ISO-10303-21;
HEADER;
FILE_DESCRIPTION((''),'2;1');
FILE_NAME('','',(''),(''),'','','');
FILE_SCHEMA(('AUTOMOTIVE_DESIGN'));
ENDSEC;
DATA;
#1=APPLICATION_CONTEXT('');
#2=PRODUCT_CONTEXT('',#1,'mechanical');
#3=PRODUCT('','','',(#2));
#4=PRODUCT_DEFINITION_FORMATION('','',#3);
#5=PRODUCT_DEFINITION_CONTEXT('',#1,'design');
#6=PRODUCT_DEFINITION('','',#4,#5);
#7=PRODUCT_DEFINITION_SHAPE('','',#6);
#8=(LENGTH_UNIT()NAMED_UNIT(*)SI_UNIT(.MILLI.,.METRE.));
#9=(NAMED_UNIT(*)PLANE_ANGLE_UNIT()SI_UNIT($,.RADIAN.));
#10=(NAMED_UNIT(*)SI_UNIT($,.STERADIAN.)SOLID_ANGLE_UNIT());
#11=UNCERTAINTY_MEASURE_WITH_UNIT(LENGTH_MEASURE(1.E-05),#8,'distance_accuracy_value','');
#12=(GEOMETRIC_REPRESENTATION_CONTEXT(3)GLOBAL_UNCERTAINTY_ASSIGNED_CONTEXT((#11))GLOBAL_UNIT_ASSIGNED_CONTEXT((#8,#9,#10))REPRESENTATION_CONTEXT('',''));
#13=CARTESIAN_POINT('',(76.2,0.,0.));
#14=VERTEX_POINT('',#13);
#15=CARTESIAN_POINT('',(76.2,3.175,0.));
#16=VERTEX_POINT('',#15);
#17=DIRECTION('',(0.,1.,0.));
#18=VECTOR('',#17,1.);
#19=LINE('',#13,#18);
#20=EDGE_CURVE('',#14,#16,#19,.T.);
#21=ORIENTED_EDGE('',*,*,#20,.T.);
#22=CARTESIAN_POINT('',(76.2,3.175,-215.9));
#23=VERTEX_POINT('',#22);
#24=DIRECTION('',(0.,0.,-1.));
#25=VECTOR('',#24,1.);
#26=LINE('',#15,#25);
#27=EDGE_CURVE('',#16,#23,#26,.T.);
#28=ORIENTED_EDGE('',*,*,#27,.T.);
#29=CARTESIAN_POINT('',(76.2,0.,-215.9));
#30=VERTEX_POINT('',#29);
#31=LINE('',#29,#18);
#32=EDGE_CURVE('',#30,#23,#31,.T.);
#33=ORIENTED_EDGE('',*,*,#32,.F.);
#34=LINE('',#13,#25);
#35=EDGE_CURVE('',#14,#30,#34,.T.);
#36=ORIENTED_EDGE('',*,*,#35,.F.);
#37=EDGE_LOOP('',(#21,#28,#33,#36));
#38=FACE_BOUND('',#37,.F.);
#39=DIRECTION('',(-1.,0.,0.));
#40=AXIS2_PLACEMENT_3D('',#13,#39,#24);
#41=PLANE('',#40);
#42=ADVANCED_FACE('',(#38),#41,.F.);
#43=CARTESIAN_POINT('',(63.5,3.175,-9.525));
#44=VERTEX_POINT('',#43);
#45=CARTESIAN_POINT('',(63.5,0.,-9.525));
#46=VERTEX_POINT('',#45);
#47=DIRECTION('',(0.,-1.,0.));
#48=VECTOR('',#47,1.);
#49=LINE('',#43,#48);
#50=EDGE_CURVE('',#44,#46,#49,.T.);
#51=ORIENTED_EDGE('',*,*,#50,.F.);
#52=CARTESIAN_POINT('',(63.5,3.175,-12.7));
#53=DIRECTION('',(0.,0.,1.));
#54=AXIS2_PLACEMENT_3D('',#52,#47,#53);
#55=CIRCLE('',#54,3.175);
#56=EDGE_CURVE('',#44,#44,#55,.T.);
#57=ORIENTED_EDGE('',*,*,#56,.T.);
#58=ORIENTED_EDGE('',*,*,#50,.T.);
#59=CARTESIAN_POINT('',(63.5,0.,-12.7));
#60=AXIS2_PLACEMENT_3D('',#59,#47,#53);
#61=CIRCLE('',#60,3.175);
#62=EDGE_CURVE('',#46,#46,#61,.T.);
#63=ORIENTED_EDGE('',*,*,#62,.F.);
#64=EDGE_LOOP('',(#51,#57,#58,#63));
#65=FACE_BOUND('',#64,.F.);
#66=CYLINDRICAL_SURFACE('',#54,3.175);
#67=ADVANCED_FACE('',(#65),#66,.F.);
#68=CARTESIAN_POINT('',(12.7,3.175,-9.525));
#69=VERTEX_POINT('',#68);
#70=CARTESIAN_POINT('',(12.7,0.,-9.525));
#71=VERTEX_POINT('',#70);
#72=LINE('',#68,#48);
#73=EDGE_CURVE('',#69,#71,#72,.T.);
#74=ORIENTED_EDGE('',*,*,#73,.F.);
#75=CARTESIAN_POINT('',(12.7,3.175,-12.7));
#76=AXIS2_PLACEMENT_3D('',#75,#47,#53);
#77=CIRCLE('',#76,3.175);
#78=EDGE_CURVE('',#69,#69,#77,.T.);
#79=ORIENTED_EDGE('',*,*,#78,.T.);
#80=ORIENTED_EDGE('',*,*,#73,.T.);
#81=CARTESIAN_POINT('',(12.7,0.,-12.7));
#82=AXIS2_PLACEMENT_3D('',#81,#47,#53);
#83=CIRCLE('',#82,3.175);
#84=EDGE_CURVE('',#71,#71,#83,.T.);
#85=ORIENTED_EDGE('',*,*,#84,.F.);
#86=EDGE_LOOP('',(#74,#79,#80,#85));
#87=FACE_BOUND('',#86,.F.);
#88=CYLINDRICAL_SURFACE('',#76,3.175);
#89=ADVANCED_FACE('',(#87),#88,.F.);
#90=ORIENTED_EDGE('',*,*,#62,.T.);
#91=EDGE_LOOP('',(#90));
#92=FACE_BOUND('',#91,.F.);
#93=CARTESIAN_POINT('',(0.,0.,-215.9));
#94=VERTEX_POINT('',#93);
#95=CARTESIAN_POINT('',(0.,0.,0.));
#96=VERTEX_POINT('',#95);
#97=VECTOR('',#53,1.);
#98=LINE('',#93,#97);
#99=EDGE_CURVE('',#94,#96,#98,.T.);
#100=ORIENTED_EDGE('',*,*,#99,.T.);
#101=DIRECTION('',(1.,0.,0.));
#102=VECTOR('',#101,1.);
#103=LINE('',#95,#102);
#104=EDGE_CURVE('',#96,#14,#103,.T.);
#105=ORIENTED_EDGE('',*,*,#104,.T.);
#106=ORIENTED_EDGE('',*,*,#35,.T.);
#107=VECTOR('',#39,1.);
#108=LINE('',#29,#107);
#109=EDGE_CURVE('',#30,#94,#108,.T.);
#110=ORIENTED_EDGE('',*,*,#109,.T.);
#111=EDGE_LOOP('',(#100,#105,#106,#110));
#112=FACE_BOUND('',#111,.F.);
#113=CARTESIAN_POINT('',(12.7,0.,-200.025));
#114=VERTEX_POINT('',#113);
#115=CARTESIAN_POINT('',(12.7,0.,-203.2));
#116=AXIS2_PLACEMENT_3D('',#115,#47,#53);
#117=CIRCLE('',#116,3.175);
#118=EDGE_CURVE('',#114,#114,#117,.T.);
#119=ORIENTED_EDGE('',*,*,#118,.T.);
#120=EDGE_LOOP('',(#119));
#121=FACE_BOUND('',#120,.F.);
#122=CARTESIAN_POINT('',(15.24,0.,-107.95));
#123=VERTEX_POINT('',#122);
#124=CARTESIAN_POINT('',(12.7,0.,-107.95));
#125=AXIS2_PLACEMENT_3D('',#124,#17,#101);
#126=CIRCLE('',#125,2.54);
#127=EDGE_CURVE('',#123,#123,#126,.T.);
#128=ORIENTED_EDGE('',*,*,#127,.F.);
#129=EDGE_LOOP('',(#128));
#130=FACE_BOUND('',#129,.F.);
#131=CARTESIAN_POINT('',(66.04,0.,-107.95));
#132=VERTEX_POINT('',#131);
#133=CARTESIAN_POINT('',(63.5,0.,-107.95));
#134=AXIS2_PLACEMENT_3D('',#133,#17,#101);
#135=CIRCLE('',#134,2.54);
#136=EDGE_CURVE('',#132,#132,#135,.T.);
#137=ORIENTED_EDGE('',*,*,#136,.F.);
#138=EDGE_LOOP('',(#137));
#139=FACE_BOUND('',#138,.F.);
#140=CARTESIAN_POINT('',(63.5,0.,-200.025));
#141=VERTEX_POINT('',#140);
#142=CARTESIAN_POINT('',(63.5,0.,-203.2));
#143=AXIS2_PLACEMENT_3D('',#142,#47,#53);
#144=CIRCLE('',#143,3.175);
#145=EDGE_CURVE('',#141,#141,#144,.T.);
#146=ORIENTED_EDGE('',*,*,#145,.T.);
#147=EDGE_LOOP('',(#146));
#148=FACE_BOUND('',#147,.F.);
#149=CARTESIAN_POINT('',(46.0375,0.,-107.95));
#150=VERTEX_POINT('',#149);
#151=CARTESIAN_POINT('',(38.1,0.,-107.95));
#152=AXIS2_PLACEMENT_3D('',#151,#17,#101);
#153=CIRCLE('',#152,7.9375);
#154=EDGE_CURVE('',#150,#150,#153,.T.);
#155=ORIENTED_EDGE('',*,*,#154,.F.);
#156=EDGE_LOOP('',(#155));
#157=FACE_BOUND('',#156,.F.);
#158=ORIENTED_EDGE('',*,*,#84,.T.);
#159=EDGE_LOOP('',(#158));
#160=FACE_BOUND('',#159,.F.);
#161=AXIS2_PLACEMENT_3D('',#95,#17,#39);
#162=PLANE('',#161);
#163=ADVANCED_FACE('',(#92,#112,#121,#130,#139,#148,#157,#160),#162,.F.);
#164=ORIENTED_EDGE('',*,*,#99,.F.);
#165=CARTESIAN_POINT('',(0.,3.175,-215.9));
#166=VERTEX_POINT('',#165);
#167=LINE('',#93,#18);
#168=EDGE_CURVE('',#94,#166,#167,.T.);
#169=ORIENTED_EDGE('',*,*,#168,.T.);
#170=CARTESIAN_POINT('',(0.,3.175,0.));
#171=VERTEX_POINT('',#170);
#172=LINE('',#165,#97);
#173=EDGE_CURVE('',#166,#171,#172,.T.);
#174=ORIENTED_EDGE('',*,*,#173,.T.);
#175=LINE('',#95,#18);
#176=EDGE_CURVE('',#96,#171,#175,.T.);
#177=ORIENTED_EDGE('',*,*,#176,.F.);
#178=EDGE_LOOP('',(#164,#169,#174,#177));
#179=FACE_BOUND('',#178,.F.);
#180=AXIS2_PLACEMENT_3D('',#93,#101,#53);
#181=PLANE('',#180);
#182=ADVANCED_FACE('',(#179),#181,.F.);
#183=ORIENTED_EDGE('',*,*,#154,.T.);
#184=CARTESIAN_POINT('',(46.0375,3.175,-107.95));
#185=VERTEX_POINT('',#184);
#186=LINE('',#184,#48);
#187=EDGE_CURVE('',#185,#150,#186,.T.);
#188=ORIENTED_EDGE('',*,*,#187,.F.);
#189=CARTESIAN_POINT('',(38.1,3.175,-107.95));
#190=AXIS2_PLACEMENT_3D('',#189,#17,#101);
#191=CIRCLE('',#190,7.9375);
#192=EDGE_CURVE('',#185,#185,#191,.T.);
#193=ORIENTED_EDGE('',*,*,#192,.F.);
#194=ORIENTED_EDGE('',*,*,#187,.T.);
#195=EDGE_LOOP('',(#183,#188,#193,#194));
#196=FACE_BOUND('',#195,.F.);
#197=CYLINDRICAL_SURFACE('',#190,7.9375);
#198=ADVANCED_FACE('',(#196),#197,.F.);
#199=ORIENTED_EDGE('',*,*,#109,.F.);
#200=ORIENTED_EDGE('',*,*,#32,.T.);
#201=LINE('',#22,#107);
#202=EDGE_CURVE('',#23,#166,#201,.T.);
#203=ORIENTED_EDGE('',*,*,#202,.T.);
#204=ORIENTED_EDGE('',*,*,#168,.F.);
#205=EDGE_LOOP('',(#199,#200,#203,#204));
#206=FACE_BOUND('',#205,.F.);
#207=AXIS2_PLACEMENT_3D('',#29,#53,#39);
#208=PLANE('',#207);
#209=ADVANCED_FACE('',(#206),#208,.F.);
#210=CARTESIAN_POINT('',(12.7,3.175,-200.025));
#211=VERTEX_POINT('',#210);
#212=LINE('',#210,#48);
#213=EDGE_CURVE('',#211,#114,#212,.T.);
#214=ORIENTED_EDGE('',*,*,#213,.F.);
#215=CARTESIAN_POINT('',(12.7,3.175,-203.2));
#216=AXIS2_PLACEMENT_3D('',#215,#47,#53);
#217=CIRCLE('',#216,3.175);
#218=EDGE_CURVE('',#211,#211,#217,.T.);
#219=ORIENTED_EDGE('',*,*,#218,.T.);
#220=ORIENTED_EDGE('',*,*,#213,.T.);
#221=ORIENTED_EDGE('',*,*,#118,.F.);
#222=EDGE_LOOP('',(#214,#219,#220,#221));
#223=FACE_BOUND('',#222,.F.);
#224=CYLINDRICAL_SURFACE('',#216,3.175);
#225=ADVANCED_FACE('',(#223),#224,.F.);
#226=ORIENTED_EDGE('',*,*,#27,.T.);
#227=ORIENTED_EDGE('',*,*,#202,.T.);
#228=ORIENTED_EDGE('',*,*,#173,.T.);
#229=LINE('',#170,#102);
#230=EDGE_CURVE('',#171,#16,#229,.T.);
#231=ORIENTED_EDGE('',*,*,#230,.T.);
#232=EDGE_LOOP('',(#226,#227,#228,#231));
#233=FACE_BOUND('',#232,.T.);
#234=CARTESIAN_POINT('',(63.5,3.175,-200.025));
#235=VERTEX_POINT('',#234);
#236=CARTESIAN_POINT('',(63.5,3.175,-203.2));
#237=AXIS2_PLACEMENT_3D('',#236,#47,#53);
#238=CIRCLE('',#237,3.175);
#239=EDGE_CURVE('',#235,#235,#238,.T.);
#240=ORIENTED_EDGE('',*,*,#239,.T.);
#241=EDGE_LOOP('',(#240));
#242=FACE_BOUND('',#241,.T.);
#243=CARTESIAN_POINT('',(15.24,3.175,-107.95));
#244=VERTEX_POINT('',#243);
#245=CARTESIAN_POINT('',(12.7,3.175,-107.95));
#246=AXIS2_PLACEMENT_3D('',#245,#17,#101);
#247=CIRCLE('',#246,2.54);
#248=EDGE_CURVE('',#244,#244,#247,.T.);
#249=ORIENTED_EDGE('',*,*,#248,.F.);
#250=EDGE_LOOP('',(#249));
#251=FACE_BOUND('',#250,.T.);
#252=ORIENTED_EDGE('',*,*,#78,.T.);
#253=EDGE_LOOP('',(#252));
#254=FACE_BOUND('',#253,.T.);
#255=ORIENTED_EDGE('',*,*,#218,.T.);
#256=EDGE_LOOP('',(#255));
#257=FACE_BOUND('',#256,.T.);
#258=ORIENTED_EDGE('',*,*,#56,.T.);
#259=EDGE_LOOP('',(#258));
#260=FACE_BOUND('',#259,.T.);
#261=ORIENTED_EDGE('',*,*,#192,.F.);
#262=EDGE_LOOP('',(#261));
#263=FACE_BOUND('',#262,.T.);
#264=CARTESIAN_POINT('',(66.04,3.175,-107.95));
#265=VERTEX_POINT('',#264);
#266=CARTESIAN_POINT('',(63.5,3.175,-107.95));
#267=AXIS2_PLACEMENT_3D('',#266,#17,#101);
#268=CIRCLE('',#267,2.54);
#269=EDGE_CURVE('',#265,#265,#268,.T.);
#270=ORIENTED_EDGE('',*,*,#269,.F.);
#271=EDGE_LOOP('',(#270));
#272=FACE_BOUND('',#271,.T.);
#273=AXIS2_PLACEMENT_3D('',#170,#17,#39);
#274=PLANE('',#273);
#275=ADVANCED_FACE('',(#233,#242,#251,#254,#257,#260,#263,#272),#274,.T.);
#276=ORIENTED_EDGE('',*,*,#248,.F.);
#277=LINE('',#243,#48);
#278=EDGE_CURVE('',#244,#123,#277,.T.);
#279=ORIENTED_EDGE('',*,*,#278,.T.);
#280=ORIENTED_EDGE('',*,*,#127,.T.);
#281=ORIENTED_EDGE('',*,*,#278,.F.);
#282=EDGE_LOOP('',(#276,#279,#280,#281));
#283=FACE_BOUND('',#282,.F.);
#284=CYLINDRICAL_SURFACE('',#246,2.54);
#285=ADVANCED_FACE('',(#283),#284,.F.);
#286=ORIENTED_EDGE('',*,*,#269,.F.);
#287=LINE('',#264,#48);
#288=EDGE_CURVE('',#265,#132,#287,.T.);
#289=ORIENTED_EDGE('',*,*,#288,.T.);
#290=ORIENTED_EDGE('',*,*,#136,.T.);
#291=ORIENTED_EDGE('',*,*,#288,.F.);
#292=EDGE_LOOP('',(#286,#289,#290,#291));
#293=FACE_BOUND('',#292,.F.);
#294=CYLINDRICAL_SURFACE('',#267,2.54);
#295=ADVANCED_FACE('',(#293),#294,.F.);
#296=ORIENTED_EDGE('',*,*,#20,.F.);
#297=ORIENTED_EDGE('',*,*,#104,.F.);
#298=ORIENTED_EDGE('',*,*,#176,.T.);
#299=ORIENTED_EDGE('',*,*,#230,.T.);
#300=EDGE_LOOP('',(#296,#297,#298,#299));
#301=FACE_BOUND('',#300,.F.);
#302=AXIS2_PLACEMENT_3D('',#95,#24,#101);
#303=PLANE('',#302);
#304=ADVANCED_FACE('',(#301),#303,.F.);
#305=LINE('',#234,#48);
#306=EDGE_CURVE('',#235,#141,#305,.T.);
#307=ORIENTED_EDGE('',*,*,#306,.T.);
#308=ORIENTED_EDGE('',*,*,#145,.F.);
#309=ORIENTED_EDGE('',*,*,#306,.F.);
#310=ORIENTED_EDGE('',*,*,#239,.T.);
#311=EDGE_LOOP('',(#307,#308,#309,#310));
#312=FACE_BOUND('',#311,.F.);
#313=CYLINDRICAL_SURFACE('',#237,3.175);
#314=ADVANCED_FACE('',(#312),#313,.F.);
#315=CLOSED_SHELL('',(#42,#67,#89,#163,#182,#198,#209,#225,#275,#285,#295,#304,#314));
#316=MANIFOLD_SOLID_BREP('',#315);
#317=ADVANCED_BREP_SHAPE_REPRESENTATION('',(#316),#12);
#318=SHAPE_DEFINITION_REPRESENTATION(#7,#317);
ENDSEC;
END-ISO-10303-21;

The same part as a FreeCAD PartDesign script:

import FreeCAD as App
import Part
import Sketcher
Q = App.Units.Quantity


def add_polygon(sketch, points):
    """Adds a closed chain of lines whose ends are joined by coincident constraints."""
    first, n = sketch.GeometryCount, len(points)
    for a, b in zip(points, points[1:] + points[:1]):
        sketch.addGeometry(Part.LineSegment(App.Vector(*a, 0), App.Vector(*b, 0)), False)
    for i in range(n):
        sketch.addConstraint(Sketcher.Constraint("Coincident", first + i, 2, first + (i + 1) % n, 1))

doc = App.newDocument("Part")
body = doc.addObject("PartDesign::Body", "Body")

# Sketch on XZ plane
sketch1 = body.newObject("Sketcher::SketchObject", "Sketch")
sketch1.AttachmentSupport = (doc.getObject("XZ_Plane"), [""])
sketch1.MapMode = "FlatFace"
add_polygon(sketch1, [(0, -216), (0, 0), (76, 0), (76, -216)])  # lines 0-3
sketch1.addConstraint(Sketcher.Constraint("Vertical", 0))
sketch1.addConstraint(Sketcher.Constraint("Horizontal", 1))
sketch1.addConstraint(Sketcher.Constraint("Vertical", 2))
sketch1.addConstraint(Sketcher.Constraint("Horizontal", 3))
sketch1.addConstraint(Sketcher.Constraint("Coincident", 0, 2, -1, 1))
sketch1.addConstraint(Sketcher.Constraint("DistanceX", 1, 1, 1, 2, Q("3 in")))
sketch1.addConstraint(Sketcher.Constraint("DistanceY", 0, 1, 0, 2, Q("8.5 in")))
pad1 = body.newObject("PartDesign::Pad", "Pad")
pad1.Profile = sketch1
pad1.Length = Q("0.125 in")
pad1.Reversed = True

# Sketch on XZ plane
sketch2 = body.newObject("Sketcher::SketchObject", "Sketch001")
sketch2.AttachmentSupport = (doc.getObject("XZ_Plane"), [""])
sketch2.MapMode = "FlatFace"
sketch2.AttachmentOffset = App.Placement(App.Vector(0, 0, -0.125 * 25.4), App.Rotation())
sketch2.addGeometry(Part.Circle(App.Vector(12.7, -108, 0), App.Vector(0, 0, 1), 2.5), False)
sketch2.addGeometry(Part.Circle(App.Vector(63.5, -108, 0), App.Vector(0, 0, 1), 2.5), False)
sketch2.addGeometry(Part.Circle(App.Vector(38.1, -108, 0), App.Vector(0, 0, 1), 7.9), False)
sketch2.addConstraint(Sketcher.Constraint("Equal", 0, 1))
sketch2.addConstraint(Sketcher.Constraint("Horizontal", 0, 3, 1, 3))
sketch2.addConstraint(Sketcher.Constraint("Horizontal", 1, 3, 2, 3))
sketch2.addConstraint(Sketcher.Constraint("Diameter", 0, Q("0.2 in")))
sketch2.addConstraint(Sketcher.Constraint("Diameter", 2, Q("0.625 in")))
sketch2.addConstraint(Sketcher.Constraint("DistanceX", 2, 3, 1, 3, Q("1 in")))
sketch2.addConstraint(Sketcher.Constraint("DistanceX", 0, 3, 2, 3, Q("1 in")))
sketch2.addConstraint(Sketcher.Constraint("DistanceX", -1, 1, 2, 3, Q("1.5 in")))
sketch2.addConstraint(Sketcher.Constraint("DistanceY", 0, 3, -1, 1, Q("4.25 in")))
pocket1 = body.newObject("PartDesign::Pocket", "Pocket")
pocket1.Profile = sketch2
pocket1.Length = Q("1 in")
pocket1.Reversed = True

# Sketch on XZ plane
sketch3 = body.newObject("Sketcher::SketchObject", "Sketch002")
sketch3.AttachmentSupport = (doc.getObject("XZ_Plane"), [""])
sketch3.MapMode = "FlatFace"
sketch3.AttachmentOffset = App.Placement(App.Vector(0, 0, -0.125 * 25.4), App.Rotation())
sketch3.addGeometry(Part.Circle(App.Vector(12.7, -12.7, 0), App.Vector(0, 0, 1), 3.2), False)
sketch3.addGeometry(Part.Circle(App.Vector(63.5, -12.7, 0), App.Vector(0, 0, 1), 3.2), False)
sketch3.addGeometry(Part.Circle(App.Vector(63.5, -203.2, 0), App.Vector(0, 0, 1), 3.2), False)
sketch3.addGeometry(Part.Circle(App.Vector(12.7, -203.2, 0), App.Vector(0, 0, 1), 3.2), False)
sketch3.addConstraint(Sketcher.Constraint("Equal", 0, 1))
sketch3.addConstraint(Sketcher.Constraint("Equal", 1, 2))
sketch3.addConstraint(Sketcher.Constraint("Equal", 2, 3))
sketch3.addConstraint(Sketcher.Constraint("Horizontal", 0, 3, 1, 3))
sketch3.addConstraint(Sketcher.Constraint("Horizontal", 2, 3, 3, 3))
sketch3.addConstraint(Sketcher.Constraint("Vertical", 1, 3, 2, 3))
sketch3.addConstraint(Sketcher.Constraint("Vertical", 0, 3, 3, 3))
sketch3.addConstraint(Sketcher.Constraint("Diameter", 0, Q("0.25 in")))
sketch3.addConstraint(Sketcher.Constraint("DistanceY", 2, 3, -1, 1, Q("8 in")))
sketch3.addConstraint(Sketcher.Constraint("DistanceX", 0, 3, 1, 3, Q("2 in")))
sketch3.addConstraint(Sketcher.Constraint("DistanceX", -1, 1, 0, 3, Q("0.5 in")))
sketch3.addConstraint(Sketcher.Constraint("DistanceY", 0, 3, -1, 1, Q("0.5 in")))
doc.recompute()
hole = body.newObject("PartDesign::Hole", "Hole")
hole.Profile = sketch3
hole.ThreadType = "None"
hole.Diameter = Q("0.25 in")
hole.DepthType = "ThroughAll"
hole.Reversed = True

doc.recompute()
